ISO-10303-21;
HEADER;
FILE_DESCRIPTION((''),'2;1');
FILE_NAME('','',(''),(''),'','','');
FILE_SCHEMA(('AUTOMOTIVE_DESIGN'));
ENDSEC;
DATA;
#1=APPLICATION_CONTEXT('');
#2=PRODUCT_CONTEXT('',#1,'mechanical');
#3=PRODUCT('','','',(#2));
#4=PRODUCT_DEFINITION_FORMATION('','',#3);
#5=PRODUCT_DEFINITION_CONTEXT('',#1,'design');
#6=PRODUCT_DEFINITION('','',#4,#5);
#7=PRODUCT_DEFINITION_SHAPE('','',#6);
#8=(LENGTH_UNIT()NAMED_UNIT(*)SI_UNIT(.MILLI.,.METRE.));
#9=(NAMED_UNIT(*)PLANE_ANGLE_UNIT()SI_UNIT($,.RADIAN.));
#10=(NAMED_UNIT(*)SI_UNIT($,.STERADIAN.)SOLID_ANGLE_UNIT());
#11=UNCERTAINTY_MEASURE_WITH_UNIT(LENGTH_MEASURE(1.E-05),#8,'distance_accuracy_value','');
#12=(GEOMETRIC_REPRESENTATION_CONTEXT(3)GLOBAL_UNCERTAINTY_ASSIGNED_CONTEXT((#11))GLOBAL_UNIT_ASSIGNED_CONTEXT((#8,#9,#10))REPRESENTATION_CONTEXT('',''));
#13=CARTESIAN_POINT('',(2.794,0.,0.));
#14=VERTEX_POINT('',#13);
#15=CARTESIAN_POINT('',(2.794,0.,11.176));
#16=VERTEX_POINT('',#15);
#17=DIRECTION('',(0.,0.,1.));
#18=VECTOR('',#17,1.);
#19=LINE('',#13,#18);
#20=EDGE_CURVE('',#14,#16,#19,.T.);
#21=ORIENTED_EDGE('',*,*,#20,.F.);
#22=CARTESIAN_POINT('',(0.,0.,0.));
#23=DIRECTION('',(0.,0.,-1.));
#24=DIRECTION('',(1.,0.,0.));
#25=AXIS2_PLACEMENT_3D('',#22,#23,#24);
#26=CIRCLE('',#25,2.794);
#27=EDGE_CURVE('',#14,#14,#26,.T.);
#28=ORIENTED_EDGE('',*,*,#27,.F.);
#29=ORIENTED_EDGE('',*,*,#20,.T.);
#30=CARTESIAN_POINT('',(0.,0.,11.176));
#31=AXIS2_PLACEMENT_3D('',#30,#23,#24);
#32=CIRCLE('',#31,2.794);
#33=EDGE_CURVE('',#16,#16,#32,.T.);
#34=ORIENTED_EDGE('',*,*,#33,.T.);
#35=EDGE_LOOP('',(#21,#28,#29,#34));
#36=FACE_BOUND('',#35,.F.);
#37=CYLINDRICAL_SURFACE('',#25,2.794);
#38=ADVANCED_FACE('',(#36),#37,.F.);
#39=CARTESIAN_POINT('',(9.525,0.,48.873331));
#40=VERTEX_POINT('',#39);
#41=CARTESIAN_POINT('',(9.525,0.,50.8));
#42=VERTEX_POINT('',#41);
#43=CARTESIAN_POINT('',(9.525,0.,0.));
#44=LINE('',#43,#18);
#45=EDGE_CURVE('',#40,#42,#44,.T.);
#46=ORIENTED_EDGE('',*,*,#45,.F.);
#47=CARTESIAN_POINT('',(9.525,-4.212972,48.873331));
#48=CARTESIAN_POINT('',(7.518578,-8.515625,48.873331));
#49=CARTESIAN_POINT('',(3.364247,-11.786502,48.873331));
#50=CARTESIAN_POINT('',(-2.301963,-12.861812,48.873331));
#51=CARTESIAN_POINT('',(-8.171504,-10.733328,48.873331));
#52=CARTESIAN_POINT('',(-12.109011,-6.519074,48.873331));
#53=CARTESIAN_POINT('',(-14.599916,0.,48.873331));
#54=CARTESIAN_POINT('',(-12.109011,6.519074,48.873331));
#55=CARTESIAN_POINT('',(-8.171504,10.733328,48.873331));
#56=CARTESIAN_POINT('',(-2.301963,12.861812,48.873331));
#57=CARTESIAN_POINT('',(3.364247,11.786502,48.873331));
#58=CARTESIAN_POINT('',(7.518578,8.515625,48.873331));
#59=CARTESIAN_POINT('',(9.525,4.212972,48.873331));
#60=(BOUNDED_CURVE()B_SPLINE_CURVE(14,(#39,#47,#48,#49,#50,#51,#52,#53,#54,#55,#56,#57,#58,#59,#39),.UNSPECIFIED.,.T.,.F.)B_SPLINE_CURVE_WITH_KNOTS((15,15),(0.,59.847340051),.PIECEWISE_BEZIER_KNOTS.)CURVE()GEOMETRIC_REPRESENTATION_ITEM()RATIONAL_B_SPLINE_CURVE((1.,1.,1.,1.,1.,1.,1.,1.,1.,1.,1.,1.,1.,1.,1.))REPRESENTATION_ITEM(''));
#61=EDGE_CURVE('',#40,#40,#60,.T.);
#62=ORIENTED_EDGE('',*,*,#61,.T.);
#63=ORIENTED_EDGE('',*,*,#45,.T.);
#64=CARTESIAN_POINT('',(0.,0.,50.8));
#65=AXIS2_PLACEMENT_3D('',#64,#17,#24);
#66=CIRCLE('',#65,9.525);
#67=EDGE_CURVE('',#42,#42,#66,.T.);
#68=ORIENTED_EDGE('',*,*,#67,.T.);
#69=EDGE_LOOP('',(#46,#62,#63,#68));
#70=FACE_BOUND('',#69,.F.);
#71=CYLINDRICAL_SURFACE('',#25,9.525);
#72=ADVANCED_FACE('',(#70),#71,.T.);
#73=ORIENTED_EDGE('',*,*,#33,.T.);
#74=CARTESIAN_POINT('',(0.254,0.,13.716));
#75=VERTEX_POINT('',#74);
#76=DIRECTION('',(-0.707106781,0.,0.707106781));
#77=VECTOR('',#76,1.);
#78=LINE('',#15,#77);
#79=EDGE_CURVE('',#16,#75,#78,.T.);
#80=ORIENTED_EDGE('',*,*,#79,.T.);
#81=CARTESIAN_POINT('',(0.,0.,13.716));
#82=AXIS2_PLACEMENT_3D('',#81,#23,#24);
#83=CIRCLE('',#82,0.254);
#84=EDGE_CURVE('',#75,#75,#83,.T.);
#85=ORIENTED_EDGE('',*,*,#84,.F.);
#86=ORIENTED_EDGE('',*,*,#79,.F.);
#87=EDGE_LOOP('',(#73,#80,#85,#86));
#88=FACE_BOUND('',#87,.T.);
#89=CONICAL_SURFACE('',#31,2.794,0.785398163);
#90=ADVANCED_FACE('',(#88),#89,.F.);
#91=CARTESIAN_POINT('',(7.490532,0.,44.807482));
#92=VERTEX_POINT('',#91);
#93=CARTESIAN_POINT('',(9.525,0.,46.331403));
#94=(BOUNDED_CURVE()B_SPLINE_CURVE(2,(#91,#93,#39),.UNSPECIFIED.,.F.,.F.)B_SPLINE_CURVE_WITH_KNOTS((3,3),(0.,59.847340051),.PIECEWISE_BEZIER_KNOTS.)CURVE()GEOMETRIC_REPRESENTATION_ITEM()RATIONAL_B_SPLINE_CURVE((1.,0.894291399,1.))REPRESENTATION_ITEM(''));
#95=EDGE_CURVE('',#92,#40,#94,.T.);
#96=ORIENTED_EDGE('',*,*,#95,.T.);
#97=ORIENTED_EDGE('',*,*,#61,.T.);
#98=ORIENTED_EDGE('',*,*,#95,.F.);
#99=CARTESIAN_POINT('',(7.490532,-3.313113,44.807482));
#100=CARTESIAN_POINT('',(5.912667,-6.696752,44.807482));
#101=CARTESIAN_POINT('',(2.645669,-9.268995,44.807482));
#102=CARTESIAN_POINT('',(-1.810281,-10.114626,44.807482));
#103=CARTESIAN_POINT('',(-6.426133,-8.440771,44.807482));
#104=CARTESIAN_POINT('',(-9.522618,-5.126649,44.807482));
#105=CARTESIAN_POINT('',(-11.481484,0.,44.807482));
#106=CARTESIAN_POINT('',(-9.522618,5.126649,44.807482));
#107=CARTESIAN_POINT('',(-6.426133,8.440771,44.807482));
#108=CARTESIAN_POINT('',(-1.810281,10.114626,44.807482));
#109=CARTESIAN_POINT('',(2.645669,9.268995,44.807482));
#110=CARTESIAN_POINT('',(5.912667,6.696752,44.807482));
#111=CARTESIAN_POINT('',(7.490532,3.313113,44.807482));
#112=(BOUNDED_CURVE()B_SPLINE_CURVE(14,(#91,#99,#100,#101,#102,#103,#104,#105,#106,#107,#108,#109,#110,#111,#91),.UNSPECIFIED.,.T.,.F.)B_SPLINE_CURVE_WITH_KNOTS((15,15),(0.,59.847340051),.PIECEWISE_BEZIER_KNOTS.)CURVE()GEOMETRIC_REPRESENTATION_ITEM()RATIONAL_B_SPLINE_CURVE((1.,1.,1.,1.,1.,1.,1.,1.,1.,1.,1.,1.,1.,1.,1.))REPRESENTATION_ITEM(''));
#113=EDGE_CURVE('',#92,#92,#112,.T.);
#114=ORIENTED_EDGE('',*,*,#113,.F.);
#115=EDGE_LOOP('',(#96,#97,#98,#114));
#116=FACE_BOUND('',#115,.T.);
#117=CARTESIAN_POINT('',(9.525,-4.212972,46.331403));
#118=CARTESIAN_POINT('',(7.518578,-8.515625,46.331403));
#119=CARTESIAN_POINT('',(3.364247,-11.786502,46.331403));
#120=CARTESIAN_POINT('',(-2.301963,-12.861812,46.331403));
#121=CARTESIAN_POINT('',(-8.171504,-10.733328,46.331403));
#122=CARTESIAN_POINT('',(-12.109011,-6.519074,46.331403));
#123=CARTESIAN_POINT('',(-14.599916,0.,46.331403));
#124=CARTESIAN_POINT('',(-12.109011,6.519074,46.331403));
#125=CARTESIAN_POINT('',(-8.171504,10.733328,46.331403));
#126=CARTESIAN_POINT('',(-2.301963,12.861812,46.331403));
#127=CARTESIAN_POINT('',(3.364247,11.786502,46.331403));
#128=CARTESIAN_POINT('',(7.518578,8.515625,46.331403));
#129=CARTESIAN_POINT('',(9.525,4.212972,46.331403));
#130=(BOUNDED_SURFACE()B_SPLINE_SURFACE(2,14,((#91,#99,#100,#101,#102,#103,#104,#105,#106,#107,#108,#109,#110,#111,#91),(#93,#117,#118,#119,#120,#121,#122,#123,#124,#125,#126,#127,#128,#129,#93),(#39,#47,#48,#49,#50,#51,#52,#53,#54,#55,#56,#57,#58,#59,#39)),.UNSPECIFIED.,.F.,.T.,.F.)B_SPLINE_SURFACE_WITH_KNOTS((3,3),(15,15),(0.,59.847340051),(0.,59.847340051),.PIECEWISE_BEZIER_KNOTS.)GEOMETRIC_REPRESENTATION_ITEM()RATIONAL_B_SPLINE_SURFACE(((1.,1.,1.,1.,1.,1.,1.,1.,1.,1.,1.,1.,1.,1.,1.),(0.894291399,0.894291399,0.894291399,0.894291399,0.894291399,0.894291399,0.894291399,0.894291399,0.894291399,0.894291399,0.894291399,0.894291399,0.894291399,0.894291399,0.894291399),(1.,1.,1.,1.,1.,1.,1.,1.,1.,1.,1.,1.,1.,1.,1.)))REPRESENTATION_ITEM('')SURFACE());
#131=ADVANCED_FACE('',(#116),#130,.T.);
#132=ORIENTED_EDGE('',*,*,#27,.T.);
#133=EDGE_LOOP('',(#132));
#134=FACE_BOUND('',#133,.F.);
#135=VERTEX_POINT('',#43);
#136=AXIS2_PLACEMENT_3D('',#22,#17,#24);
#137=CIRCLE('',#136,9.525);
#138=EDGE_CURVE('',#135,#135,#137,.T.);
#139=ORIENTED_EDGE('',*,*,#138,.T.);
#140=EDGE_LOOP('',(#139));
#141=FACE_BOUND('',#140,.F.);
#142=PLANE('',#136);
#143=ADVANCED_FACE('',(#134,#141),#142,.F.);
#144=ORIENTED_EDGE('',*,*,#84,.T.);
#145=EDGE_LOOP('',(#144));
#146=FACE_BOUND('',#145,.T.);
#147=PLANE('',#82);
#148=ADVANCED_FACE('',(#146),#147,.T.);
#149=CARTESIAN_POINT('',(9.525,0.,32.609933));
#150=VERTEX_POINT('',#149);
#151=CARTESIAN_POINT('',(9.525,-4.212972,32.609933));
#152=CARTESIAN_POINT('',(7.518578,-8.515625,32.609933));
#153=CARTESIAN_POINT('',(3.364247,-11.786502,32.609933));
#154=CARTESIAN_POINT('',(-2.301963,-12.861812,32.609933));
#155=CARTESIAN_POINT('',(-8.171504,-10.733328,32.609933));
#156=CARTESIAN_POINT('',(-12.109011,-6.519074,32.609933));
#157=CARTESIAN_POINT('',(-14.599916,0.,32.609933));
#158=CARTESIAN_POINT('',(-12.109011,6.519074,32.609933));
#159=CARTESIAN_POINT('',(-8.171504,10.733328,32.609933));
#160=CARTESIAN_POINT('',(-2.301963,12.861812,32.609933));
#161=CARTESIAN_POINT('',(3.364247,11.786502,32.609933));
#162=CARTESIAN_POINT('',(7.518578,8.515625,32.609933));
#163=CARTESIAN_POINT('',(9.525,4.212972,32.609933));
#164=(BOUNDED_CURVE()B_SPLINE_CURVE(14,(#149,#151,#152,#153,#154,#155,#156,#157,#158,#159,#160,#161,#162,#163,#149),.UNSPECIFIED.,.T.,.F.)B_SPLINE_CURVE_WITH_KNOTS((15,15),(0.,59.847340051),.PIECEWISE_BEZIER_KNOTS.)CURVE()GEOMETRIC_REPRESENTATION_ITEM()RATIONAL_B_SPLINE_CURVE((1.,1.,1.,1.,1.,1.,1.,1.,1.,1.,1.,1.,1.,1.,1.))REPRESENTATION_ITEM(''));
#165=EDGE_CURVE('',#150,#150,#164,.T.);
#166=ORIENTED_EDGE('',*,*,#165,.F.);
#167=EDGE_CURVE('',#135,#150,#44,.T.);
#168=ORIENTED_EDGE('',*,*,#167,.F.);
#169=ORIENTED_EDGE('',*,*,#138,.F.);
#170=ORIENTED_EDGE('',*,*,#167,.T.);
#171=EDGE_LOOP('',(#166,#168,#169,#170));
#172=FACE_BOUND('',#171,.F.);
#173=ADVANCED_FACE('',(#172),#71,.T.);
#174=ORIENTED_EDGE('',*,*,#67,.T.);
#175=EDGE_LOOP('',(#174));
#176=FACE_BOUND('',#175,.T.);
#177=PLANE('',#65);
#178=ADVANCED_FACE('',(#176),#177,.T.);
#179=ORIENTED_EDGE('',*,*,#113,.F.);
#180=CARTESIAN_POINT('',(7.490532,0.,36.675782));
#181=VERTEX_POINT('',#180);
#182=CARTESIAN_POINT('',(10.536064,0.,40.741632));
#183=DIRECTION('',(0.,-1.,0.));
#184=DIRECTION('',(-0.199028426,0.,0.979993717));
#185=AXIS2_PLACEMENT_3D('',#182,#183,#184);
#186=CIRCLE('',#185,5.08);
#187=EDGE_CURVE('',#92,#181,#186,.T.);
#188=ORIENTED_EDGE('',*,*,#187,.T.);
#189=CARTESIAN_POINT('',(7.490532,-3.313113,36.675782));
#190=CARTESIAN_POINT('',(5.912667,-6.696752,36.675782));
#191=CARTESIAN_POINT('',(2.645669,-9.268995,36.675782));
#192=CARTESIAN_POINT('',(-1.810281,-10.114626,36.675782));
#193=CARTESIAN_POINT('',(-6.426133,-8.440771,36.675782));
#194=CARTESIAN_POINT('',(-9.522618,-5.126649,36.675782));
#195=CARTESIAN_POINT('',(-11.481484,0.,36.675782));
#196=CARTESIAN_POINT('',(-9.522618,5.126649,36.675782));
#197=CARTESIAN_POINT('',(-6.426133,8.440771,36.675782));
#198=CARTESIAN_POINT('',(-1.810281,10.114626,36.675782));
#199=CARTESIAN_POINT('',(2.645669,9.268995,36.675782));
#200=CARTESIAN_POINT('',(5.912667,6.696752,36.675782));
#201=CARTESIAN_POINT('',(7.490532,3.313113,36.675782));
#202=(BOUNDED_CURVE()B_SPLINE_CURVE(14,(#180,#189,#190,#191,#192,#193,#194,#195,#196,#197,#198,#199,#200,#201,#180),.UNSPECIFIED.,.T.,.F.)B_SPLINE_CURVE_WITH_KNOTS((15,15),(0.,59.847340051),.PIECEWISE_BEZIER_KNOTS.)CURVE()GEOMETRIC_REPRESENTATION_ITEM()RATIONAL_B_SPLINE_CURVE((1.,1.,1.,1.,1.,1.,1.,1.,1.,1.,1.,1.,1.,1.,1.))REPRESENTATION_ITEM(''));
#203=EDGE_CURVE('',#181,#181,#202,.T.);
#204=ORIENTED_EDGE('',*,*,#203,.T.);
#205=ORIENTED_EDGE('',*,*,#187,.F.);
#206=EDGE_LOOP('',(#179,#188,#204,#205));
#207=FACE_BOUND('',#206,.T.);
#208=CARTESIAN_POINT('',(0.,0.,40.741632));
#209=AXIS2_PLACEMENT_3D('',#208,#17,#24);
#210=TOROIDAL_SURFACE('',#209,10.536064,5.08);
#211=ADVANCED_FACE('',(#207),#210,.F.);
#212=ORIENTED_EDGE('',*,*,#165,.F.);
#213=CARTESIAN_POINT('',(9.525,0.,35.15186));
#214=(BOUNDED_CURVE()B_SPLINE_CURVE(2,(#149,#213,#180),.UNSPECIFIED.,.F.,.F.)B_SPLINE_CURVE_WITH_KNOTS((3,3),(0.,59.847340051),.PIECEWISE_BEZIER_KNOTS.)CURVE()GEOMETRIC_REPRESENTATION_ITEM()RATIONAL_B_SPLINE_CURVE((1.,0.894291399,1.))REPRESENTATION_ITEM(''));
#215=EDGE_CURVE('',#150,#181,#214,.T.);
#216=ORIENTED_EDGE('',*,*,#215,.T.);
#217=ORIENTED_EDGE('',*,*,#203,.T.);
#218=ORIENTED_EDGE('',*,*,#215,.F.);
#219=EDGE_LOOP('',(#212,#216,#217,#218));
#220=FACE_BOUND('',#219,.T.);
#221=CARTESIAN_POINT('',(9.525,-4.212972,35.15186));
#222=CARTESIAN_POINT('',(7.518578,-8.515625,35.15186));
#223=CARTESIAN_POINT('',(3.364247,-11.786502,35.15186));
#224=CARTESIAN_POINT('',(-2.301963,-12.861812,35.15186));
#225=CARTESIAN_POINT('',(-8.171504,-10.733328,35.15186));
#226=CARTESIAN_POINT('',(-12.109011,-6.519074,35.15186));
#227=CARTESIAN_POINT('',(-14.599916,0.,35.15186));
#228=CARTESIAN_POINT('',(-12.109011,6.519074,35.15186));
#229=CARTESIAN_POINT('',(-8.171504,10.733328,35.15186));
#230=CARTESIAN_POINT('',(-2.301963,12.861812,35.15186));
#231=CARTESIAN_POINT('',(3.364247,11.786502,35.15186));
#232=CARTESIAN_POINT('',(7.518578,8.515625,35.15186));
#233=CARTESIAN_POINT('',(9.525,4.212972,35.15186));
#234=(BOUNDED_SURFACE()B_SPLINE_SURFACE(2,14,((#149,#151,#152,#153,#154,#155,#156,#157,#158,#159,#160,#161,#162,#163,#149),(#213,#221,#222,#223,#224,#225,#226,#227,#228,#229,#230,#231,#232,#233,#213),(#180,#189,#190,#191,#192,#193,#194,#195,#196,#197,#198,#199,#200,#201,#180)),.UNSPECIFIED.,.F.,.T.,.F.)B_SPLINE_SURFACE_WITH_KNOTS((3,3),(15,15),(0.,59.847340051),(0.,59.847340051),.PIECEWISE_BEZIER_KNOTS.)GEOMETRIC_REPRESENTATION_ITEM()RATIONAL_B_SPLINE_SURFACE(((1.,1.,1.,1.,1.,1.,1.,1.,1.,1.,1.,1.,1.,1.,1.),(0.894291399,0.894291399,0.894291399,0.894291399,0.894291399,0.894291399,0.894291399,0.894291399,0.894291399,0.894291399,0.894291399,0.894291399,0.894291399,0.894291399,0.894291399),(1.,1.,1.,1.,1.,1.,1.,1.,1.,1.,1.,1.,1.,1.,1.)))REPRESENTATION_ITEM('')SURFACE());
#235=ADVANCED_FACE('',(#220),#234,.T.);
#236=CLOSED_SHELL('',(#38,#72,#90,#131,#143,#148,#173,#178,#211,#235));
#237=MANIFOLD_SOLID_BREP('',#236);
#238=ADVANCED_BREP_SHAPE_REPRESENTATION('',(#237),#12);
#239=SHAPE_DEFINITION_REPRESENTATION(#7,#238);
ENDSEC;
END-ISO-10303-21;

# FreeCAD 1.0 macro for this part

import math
import FreeCAD as App
import Part
import Sketcher
Q = App.Units.Quantity


def edges_at(feature, points):
    """Names of the edges that pass closest to the given points."""
    edges = feature.Shape.Edges
    near = lambda p: min(range(len(edges)), key=lambda i: edges[i].distToShape(Part.Vertex(*p))[0])
    return sorted({f"Edge{near(p) + 1}" for p in points})

doc = App.newDocument("Part")
body = doc.addObject("PartDesign::Body", "Body")

sketch1 = body.newObject("Sketcher::SketchObject", "Sketch")
sketch1.AttachmentSupport = (doc.getObject("XY_Plane"), [""])
sketch1.MapMode = "FlatFace"
sketch1.addGeometry(Part.Circle(App.Vector(0, 0, 0), App.Vector(0, 0, 1), 10), False)
sketch1.addConstraint(Sketcher.Constraint("Coincident", 0, 3, -1, 1))
sketch1.addConstraint(Sketcher.Constraint("Diameter", 0, Q("0.75 in")))
pad1 = body.newObject("PartDesign::Pad", "Pad")
pad1.Profile = sketch1
pad1.Length = Q("2 in")

sketch2 = body.newObject("Sketcher::SketchObject", "Sketch001")
sketch2.AttachmentSupport = (doc.getObject("XZ_Plane"), [""])
sketch2.MapMode = "FlatFace"
sketch2.addGeometry(Part.LineSegment(App.Vector(10, 36, 0), App.Vector(10, 46, 0)), False)
sketch2.addGeometry(Part.ArcOfCircle(Part.Circle(App.Vector(11, 41, 0), App.Vector(0, 0, 1), 5), math.radians(101), math.radians(259)), False)
sketch2.addConstraint(Sketcher.Constraint("Coincident", 0, 1, 1, 2))
sketch2.addConstraint(Sketcher.Constraint("Coincident", 1, 1, 0, 2))
sketch2.addConstraint(Sketcher.Constraint("Vertical", 0))
sketch2.addConstraint(Sketcher.Constraint("Radius", 1, Q("0.2 in")))
sketch2.addConstraint(Sketcher.Constraint("DistanceY", -1, 1, 1, 1, Q("1.8 in")))
sketch2.addConstraint(Sketcher.Constraint("DistanceX", -1, 1, 0, 1, Q("0.375 in")))
sketch2.addConstraint(Sketcher.Constraint("DistanceY", 0, 1, 0, 2, 9.956736))
groove = body.newObject("PartDesign::Groove", "Groove")
groove.Profile = sketch2
groove.ReferenceAxis = (sketch2, ["V_Axis"])
groove.Angle = 360
doc.recompute()

fillet = body.newObject("PartDesign::Fillet", "Fillet")
fillet.Base = (groove, edges_at(groove, [(-9.525, 0, 45.72), (-9.525, 0, 35.763)]))
fillet.Radius = Q("0.2 in")

sketch3 = body.newObject("Sketcher::SketchObject", "Sketch002")
sketch3.AttachmentSupport = (doc.getObject("XY_Plane"), [""])
sketch3.MapMode = "FlatFace"
sketch3.addGeometry(Part.Circle(App.Vector(0, 0, 0), App.Vector(0, 0, 1), 2.8), False)
sketch3.addConstraint(Sketcher.Constraint("Coincident", 0, 3, -1, 1))
sketch3.addConstraint(Sketcher.Constraint("Diameter", 0, Q("0.22 in")))
pocket1 = body.newObject("PartDesign::Pocket", "Pocket")
pocket1.Profile = sketch3
pocket1.Length = Q("0.54 in")
pocket1.Reversed = True
doc.recompute()

chamfer = body.newObject("PartDesign::Chamfer", "Chamfer")
chamfer.Base = (pocket1, edges_at(pocket1, [(-2.794, 0, 13.716)]))
chamfer.Size = Q("0.1 in")

doc.recompute()
